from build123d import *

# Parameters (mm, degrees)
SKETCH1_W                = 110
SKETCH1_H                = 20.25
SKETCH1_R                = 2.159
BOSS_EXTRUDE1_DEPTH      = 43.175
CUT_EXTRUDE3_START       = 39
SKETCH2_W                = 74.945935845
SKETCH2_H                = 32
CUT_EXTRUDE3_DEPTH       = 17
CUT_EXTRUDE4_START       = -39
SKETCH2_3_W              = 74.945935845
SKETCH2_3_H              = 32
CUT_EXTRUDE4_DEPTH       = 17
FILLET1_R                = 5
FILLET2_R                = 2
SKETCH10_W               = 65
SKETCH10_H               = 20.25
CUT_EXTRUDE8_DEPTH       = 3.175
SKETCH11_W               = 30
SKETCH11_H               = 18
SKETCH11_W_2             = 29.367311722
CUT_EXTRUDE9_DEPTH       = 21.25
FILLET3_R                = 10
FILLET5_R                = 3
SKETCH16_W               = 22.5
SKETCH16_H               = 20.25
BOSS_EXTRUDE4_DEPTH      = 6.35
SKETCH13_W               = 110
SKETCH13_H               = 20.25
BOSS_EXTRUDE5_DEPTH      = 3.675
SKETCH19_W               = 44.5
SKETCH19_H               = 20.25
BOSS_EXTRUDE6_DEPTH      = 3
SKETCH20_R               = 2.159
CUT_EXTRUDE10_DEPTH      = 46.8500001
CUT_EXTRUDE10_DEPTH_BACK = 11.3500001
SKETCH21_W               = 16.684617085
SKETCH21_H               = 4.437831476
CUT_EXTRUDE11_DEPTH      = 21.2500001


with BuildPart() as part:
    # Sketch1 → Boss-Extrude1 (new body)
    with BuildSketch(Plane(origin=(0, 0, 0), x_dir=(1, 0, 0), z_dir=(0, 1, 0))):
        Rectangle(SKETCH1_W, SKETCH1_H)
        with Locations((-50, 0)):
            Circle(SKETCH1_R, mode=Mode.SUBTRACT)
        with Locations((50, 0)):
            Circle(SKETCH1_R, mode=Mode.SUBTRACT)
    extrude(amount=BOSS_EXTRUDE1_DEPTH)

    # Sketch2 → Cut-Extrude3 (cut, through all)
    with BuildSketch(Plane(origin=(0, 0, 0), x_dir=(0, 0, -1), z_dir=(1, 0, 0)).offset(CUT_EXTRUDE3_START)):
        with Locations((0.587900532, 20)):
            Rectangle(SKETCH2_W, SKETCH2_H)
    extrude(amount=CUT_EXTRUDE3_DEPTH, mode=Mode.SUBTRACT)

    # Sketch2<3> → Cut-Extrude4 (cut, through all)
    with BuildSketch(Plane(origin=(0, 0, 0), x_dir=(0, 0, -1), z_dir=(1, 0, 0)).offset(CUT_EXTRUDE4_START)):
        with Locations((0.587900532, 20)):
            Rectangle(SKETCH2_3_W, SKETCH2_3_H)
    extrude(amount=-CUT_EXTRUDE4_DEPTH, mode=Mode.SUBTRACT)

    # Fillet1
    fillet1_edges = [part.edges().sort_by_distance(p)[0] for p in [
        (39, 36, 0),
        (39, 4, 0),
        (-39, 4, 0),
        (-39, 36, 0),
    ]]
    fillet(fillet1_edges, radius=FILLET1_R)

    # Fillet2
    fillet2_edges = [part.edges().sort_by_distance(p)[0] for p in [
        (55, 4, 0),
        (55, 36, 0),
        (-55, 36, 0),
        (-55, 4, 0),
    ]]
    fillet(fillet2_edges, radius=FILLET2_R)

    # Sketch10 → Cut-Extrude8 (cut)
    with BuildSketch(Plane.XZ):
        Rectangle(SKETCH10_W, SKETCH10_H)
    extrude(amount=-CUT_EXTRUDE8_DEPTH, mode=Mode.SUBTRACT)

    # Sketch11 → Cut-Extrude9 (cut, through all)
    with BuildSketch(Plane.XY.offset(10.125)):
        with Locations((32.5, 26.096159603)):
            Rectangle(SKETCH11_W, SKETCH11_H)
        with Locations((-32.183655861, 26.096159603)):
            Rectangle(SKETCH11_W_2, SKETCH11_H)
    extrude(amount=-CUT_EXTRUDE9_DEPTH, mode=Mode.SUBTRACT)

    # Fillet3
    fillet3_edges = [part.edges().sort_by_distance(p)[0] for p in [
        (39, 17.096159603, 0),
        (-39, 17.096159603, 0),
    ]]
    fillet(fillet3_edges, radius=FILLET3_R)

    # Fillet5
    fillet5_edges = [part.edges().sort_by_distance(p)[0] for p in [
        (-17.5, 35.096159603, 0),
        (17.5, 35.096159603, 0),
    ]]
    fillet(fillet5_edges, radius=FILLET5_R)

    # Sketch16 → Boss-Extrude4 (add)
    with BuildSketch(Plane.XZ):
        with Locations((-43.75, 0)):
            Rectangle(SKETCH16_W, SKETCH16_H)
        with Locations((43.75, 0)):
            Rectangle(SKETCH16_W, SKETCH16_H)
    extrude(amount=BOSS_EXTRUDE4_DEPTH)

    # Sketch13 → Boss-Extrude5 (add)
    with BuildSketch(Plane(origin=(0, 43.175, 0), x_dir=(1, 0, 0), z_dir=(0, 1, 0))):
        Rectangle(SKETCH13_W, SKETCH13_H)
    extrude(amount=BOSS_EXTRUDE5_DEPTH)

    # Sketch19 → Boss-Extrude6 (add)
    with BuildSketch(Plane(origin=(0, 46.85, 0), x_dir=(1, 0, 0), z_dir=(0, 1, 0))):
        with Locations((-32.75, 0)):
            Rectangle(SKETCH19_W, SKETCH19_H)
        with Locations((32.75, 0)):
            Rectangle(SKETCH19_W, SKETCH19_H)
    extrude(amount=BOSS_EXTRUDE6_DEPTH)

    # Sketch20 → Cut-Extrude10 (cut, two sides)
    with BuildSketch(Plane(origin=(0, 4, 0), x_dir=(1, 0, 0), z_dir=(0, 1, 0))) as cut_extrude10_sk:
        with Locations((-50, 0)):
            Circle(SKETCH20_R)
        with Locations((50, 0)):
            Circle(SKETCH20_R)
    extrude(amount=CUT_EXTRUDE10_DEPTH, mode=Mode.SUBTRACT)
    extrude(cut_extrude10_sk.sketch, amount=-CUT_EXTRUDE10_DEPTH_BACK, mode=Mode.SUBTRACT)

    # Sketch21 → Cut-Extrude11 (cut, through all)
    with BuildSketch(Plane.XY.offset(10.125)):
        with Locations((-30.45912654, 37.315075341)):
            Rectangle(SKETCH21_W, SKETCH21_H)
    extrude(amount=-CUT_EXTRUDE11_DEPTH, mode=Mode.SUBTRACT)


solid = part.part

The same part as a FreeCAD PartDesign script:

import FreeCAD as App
import Part
import Sketcher
Q = App.Units.Quantity


def edges_at(feature, points):
    """Names of the edges that pass closest to the given points."""
    edges = feature.Shape.Edges
    near = lambda p: min(range(len(edges)), key=lambda i: edges[i].distToShape(Part.Vertex(*p))[0])
    return sorted({f"Edge{near(p) + 1}" for p in points})


def add_polygon(sketch, points):
    """Adds a closed chain of lines whose ends are joined by coincident constraints."""
    first, n = sketch.GeometryCount, len(points)
    for a, b in zip(points, points[1:] + points[:1]):
        sketch.addGeometry(Part.LineSegment(App.Vector(*a, 0), App.Vector(*b, 0)), False)
    for i in range(n):
        sketch.addConstraint(Sketcher.Constraint("Coincident", first + i, 2, first + (i + 1) % n, 1))

doc = App.newDocument("Part")
body = doc.addObject("PartDesign::Body", "Body")

# Sketch on XZ plane
sketch1 = body.newObject("Sketcher::SketchObject", "Sketch")
sketch1.AttachmentSupport = (doc.getObject("XZ_Plane"), [""])
sketch1.MapMode = "FlatFace"
add_polygon(sketch1, [(-55, -10.125), (-55, 10.125), (55, 10.125), (55, -10.125)])  # lines 0-3
sketch1.addGeometry(Part.Circle(App.Vector(-50, 0, 0), App.Vector(0, 0, 1), 2.159), False)  # 4
sketch1.addGeometry(Part.Circle(App.Vector(50, 0, 0), App.Vector(0, 0, 1), 2.159), False)  # 5
sketch1.addConstraint(Sketcher.Constraint("Vertical", 0))
sketch1.addConstraint(Sketcher.Constraint("Horizontal", 1))
sketch1.addConstraint(Sketcher.Constraint("Vertical", 2))
sketch1.addConstraint(Sketcher.Constraint("Horizontal", 3))
sketch1.addConstraint(Sketcher.Constraint("Equal", 4, 5))
sketch1.addConstraint(Sketcher.Constraint("Symmetric", 4, 3, 5, 3, -1, 1))
sketch1.addConstraint(Sketcher.Constraint("Symmetric", 0, 2, 2, 2, -1, 1))
sketch1.addConstraint(Sketcher.Constraint("PointOnObject", 4, 3, -1))
sketch1.addConstraint(Sketcher.Constraint("DistanceX", 1, 1, 1, 2, Q("110 mm")))
sketch1.addConstraint(Sketcher.Constraint("Diameter", 4, Q("4.318 mm")))
sketch1.addConstraint(Sketcher.Constraint("DistanceX", 4, 3, -1, 1, Q("50 mm")))
sketch1.addConstraint(Sketcher.Constraint("DistanceY", 0, 1, 0, 2, Q("20.25 mm")))
pad1 = body.newObject("PartDesign::Pad", "Pad")
pad1.Profile = sketch1
pad1.Length = 43.175
pad1.Reversed = True

# Sketch on YZ plane
sketch2 = body.newObject("Sketcher::SketchObject", "Sketch001")
sketch2.AttachmentSupport = (doc.getObject("YZ_Plane"), [""])
sketch2.MapMode = "FlatFace"
sketch2.AttachmentOffset = App.Placement(App.Vector(0, 0, 39), App.Rotation())
add_polygon(sketch2, [(36, 36.885067), (4, 36.885067), (4, -38.060868), (36, -38.060868)])  # lines 0-3
sketch2.addConstraint(Sketcher.Constraint("Horizontal", 0))
sketch2.addConstraint(Sketcher.Constraint("Vertical", 1))
sketch2.addConstraint(Sketcher.Constraint("Horizontal", 2))
sketch2.addConstraint(Sketcher.Constraint("Vertical", 3))
sketch2.addConstraint(Sketcher.Constraint("DistanceX", 0, 2, 0, 1, Q("32 mm")))
sketch2.addConstraint(Sketcher.Constraint("DistanceX", -1, 1, 0, 2, Q("4 mm")))
sketch2.addConstraint(Sketcher.Constraint("DistanceY", 1, 2, 1, 1, Q("74.945936 mm")))
sketch2.addConstraint(Sketcher.Constraint("DistanceY", 1, 2, -1, 1, Q("38.060868 mm")))
pocket1 = body.newObject("PartDesign::Pocket", "Pocket")
pocket1.Profile = sketch2
pocket1.Type = "ThroughAll"
pocket1.Reversed = True

# Sketch on YZ plane
sketch3 = body.newObject("Sketcher::SketchObject", "Sketch002")
sketch3.AttachmentSupport = (doc.getObject("YZ_Plane"), [""])
sketch3.MapMode = "FlatFace"
sketch3.AttachmentOffset = App.Placement(App.Vector(0, 0, -39), App.Rotation())
add_polygon(sketch3, [(36, 36.885067), (4, 36.885067), (4, -38.060868), (36, -38.060868)])  # lines 0-3
sketch3.addConstraint(Sketcher.Constraint("Horizontal", 0))
sketch3.addConstraint(Sketcher.Constraint("Vertical", 1))
sketch3.addConstraint(Sketcher.Constraint("Horizontal", 2))
sketch3.addConstraint(Sketcher.Constraint("Vertical", 3))
sketch3.addConstraint(Sketcher.Constraint("DistanceX", 0, 2, 0, 1, Q("32 mm")))
sketch3.addConstraint(Sketcher.Constraint("DistanceX", -1, 1, 0, 2, Q("4 mm")))
sketch3.addConstraint(Sketcher.Constraint("DistanceY", 1, 2, 1, 1, Q("74.945936 mm")))
sketch3.addConstraint(Sketcher.Constraint("DistanceY", 1, 2, -1, 1, Q("38.060868 mm")))
pocket2 = body.newObject("PartDesign::Pocket", "Pocket001")
pocket2.Profile = sketch3
pocket2.Type = "ThroughAll"
doc.recompute()

fillet = body.newObject("PartDesign::Fillet", "Fillet")
fillet.Base = (pocket2, edges_at(pocket2, [
    (39, 36, 0),
    (39, 4, 0),
    (-39, 4, 0),
    (-39, 36, 0),
]))
fillet.Radius = 5
doc.recompute()

fillet2 = body.newObject("PartDesign::Fillet", "Fillet001")
fillet2.Base = (fillet, edges_at(fillet, [
    (55, 4, 0),
    (55, 36, 0),
    (-55, 36, 0),
    (-55, 4, 0),
]))
fillet2.Radius = 2

# Sketch on XZ plane
sketch4 = body.newObject("Sketcher::SketchObject", "Sketch003")
sketch4.AttachmentSupport = (doc.getObject("XZ_Plane"), [""])
sketch4.MapMode = "FlatFace"
add_polygon(sketch4, [(-32.5, 10.125), (-32.5, -10.125), (32.5, -10.125), (32.5, 10.125)])  # lines 0-3
sketch4.addConstraint(Sketcher.Constraint("Vertical", 0))
sketch4.addConstraint(Sketcher.Constraint("Horizontal", 1))
sketch4.addConstraint(Sketcher.Constraint("Vertical", 2))
sketch4.addConstraint(Sketcher.Constraint("Horizontal", 3))
sketch4.addConstraint(Sketcher.Constraint("Symmetric", 0, 2, 2, 2, -1, 1))
sketch4.addConstraint(Sketcher.Constraint("DistanceX", 1, 1, 1, 2, Q("65 mm")))
sketch4.addConstraint(Sketcher.Constraint("DistanceY", 0, 2, 0, 1, Q("20.25 mm")))
pocket3 = body.newObject("PartDesign::Pocket", "Pocket002")
pocket3.Profile = sketch4
pocket3.Length = 3.175

# Sketch on XY plane
sketch5 = body.newObject("Sketcher::SketchObject", "Sketch004")
sketch5.AttachmentSupport = (doc.getObject("XY_Plane"), [""])
sketch5.MapMode = "FlatFace"
sketch5.AttachmentOffset = App.Placement(App.Vector(0, 0, 10.125), App.Rotation())
add_polygon(sketch5, [(17.5, 35.09616), (17.5, 17.09616), (47.5, 17.09616), (47.5, 35.09616)])  # lines 0-3
add_polygon(sketch5, [(-46.867312, 35.09616), (-46.867312, 17.09616), (-17.5, 17.09616), (-17.5, 35.09616)])  # lines 4-7
sketch5.addConstraint(Sketcher.Constraint("Vertical", 0))
sketch5.addConstraint(Sketcher.Constraint("Horizontal", 1))
sketch5.addConstraint(Sketcher.Constraint("Vertical", 2))
sketch5.addConstraint(Sketcher.Constraint("Horizontal", 3))
sketch5.addConstraint(Sketcher.Constraint("Vertical", 4))
sketch5.addConstraint(Sketcher.Constraint("Horizontal", 5))
sketch5.addConstraint(Sketcher.Constraint("Vertical", 6))
sketch5.addConstraint(Sketcher.Constraint("Horizontal", 7))
sketch5.addConstraint(Sketcher.Constraint("Symmetric", 0, 2, 5, 2, -2))
sketch5.addConstraint(Sketcher.Constraint("Horizontal", 3, 2, 6, 2))
sketch5.addConstraint(Sketcher.Constraint("DistanceX", 1, 1, 1, 2, Q("30 mm")))
sketch5.addConstraint(Sketcher.Constraint("DistanceY", 0, 2, 0, 1, Q("18 mm")))
sketch5.addConstraint(Sketcher.Constraint("DistanceX", 5, 2, 0, 2, Q("35 mm")))
sketch5.addConstraint(Sketcher.Constraint("DistanceX", 5, 1, 5, 2, Q("29.367312 mm")))
sketch5.addConstraint(Sketcher.Constraint("DistanceY", -1, 1, 0, 2, Q("17.09616 mm")))
pocket4 = body.newObject("PartDesign::Pocket", "Pocket003")
pocket4.Profile = sketch5
pocket4.Type = "ThroughAll"
doc.recompute()

fillet3 = body.newObject("PartDesign::Fillet", "Fillet002")
fillet3.Base = (pocket4, edges_at(pocket4, [(39, 17.096, 0), (-39, 17.096, 0)]))
fillet3.Radius = 10
doc.recompute()

fillet4 = body.newObject("PartDesign::Fillet", "Fillet003")
fillet4.Base = (fillet3, edges_at(fillet3, [(-17.5, 35.096, 0), (17.5, 35.096, 0)]))
fillet4.Radius = 3

# Sketch on XZ plane
sketch6 = body.newObject("Sketcher::SketchObject", "Sketch005")
sketch6.AttachmentSupport = (doc.getObject("XZ_Plane"), [""])
sketch6.MapMode = "FlatFace"
add_polygon(sketch6, [(-55, 10.125), (-55, -10.125), (-32.5, -10.125), (-32.5, 10.125)])  # lines 0-3
add_polygon(sketch6, [(32.5, 10.125), (32.5, -10.125), (55, -10.125), (55, 10.125)])  # lines 4-7
sketch6.addConstraint(Sketcher.Constraint("Vertical", 0))
sketch6.addConstraint(Sketcher.Constraint("Horizontal", 1))
sketch6.addConstraint(Sketcher.Constraint("Vertical", 2))
sketch6.addConstraint(Sketcher.Constraint("Horizontal", 3))
sketch6.addConstraint(Sketcher.Constraint("Vertical", 4))
sketch6.addConstraint(Sketcher.Constraint("Horizontal", 5))
sketch6.addConstraint(Sketcher.Constraint("Vertical", 6))
sketch6.addConstraint(Sketcher.Constraint("Horizontal", 7))
sketch6.addConstraint(Sketcher.Constraint("Symmetric", 2, 2, 4, 2, -1, 1))
sketch6.addConstraint(Sketcher.Constraint("Symmetric", 0, 2, 6, 2, -1, 1))
sketch6.addConstraint(Sketcher.Constraint("Horizontal", 1, 2, 4, 2))
sketch6.addConstraint(Sketcher.Constraint("DistanceX", 1, 1, 1, 2, Q("22.5 mm")))
sketch6.addConstraint(Sketcher.Constraint("DistanceX", 0, 2, -1, 1, Q("55 mm")))
sketch6.addConstraint(Sketcher.Constraint("DistanceY", 0, 2, 0, 1, Q("20.25 mm")))
pad2 = body.newObject("PartDesign::Pad", "Pad001")
pad2.Profile = sketch6
pad2.Length = 6.35

# Sketch on XZ plane
sketch7 = body.newObject("Sketcher::SketchObject", "Sketch006")
sketch7.AttachmentSupport = (doc.getObject("XZ_Plane"), [""])
sketch7.MapMode = "FlatFace"
sketch7.AttachmentOffset = App.Placement(App.Vector(0, 0, -43.175), App.Rotation())
add_polygon(sketch7, [(-55, -10.125), (-55, 10.125), (55, 10.125), (55, -10.125)])  # lines 0-3
sketch7.addConstraint(Sketcher.Constraint("Vertical", 0))
sketch7.addConstraint(Sketcher.Constraint("Horizontal", 1))
sketch7.addConstraint(Sketcher.Constraint("Vertical", 2))
sketch7.addConstraint(Sketcher.Constraint("Horizontal", 3))
sketch7.addConstraint(Sketcher.Constraint("Symmetric", 0, 2, 2, 2, -1, 1))
sketch7.addConstraint(Sketcher.Constraint("DistanceX", 1, 1, 1, 2, Q("110 mm")))
sketch7.addConstraint(Sketcher.Constraint("DistanceY", 0, 1, 0, 2, Q("20.25 mm")))
pad3 = body.newObject("PartDesign::Pad", "Pad002")
pad3.Profile = sketch7
pad3.Length = 3.675
pad3.Reversed = True

# Sketch on XZ plane
sketch8 = body.newObject("Sketcher::SketchObject", "Sketch007")
sketch8.AttachmentSupport = (doc.getObject("XZ_Plane"), [""])
sketch8.MapMode = "FlatFace"
sketch8.AttachmentOffset = App.Placement(App.Vector(0, 0, -46.85), App.Rotation())
add_polygon(sketch8, [(-55, -10.125), (-55, 10.125), (-10.5, 10.125), (-10.5, -10.125)])  # lines 0-3
add_polygon(sketch8, [(10.5, -10.125), (10.5, 10.125), (55, 10.125), (55, -10.125)])  # lines 4-7
sketch8.addConstraint(Sketcher.Constraint("Vertical", 0))
sketch8.addConstraint(Sketcher.Constraint("Horizontal", 1))
sketch8.addConstraint(Sketcher.Constraint("Vertical", 2))
sketch8.addConstraint(Sketcher.Constraint("Horizontal", 3))
sketch8.addConstraint(Sketcher.Constraint("Vertical", 4))
sketch8.addConstraint(Sketcher.Constraint("Horizontal", 5))
sketch8.addConstraint(Sketcher.Constraint("Vertical", 6))
sketch8.addConstraint(Sketcher.Constraint("Horizontal", 7))
sketch8.addConstraint(Sketcher.Constraint("Symmetric", 2, 2, 4, 2, -1, 1))
sketch8.addConstraint(Sketcher.Constraint("Symmetric", 0, 2, 6, 2, -1, 1))
sketch8.addConstraint(Sketcher.Constraint("Horizontal", 1, 2, 4, 2))
sketch8.addConstraint(Sketcher.Constraint("DistanceX", 1, 1, 1, 2, Q("44.5 mm")))
sketch8.addConstraint(Sketcher.Constraint("DistanceX", 0, 2, -1, 1, Q("55 mm")))
sketch8.addConstraint(Sketcher.Constraint("DistanceY", 0, 1, 0, 2, Q("20.25 mm")))
pad4 = body.newObject("PartDesign::Pad", "Pad003")
pad4.Profile = sketch8
pad4.Length = 3
pad4.Reversed = True

# Sketch on XZ plane
sketch9 = body.newObject("Sketcher::SketchObject", "Sketch008")
sketch9.AttachmentSupport = (doc.getObject("XZ_Plane"), [""])
sketch9.MapMode = "FlatFace"
sketch9.AttachmentOffset = App.Placement(App.Vector(0, 0, -4), App.Rotation())
sketch9.addGeometry(Part.Circle(App.Vector(-50, 0, 0), App.Vector(0, 0, 1), 2.159), False)
sketch9.addGeometry(Part.Circle(App.Vector(50, 0, 0), App.Vector(0, 0, 1), 2.159), False)
sketch9.addConstraint(Sketcher.Constraint("Equal", 0, 1))
sketch9.addConstraint(Sketcher.Constraint("Symmetric", 0, 3, 1, 3, -1, 1))
sketch9.addConstraint(Sketcher.Constraint("PointOnObject", 0, 3, -1))
sketch9.addConstraint(Sketcher.Constraint("Diameter", 0, Q("4.318 mm")))
sketch9.addConstraint(Sketcher.Constraint("DistanceX", 0, 3, -1, 1, Q("50 mm")))
pocket5 = body.newObject("PartDesign::Pocket", "Pocket004")
pocket5.Profile = sketch9
pocket5.Type = "ThroughAll"
pocket5.Midplane = True

# Sketch on XY plane
sketch10 = body.newObject("Sketcher::SketchObject", "Sketch009")
sketch10.AttachmentSupport = (doc.getObject("XY_Plane"), [""])
sketch10.MapMode = "FlatFace"
sketch10.AttachmentOffset = App.Placement(App.Vector(0, 0, 10.125), App.Rotation())
add_polygon(sketch10, [(-38.801435, 39.533991), (-38.801435, 35.09616), (-22.116818, 35.09616), (-22.116818, 39.533991)])  # lines 0-3
sketch10.addConstraint(Sketcher.Constraint("Vertical", 0))
sketch10.addConstraint(Sketcher.Constraint("Horizontal", 1))
sketch10.addConstraint(Sketcher.Constraint("Vertical", 2))
sketch10.addConstraint(Sketcher.Constraint("Horizontal", 3))
sketch10.addConstraint(Sketcher.Constraint("DistanceY", 0, 2, 0, 1, Q("4.437831 mm")))
sketch10.addConstraint(Sketcher.Constraint("DistanceX", 1, 1, 1, 2, Q("16.684617 mm")))
sketch10.addConstraint(Sketcher.Constraint("DistanceY", -1, 1, 0, 2, Q("35.09616 mm")))
sketch10.addConstraint(Sketcher.Constraint("DistanceX", 0, 2, -1, 1, Q("38.801435 mm")))
pocket6 = body.newObject("PartDesign::Pocket", "Pocket005")
pocket6.Profile = sketch10
pocket6.Type = "ThroughAll"

doc.recompute()
